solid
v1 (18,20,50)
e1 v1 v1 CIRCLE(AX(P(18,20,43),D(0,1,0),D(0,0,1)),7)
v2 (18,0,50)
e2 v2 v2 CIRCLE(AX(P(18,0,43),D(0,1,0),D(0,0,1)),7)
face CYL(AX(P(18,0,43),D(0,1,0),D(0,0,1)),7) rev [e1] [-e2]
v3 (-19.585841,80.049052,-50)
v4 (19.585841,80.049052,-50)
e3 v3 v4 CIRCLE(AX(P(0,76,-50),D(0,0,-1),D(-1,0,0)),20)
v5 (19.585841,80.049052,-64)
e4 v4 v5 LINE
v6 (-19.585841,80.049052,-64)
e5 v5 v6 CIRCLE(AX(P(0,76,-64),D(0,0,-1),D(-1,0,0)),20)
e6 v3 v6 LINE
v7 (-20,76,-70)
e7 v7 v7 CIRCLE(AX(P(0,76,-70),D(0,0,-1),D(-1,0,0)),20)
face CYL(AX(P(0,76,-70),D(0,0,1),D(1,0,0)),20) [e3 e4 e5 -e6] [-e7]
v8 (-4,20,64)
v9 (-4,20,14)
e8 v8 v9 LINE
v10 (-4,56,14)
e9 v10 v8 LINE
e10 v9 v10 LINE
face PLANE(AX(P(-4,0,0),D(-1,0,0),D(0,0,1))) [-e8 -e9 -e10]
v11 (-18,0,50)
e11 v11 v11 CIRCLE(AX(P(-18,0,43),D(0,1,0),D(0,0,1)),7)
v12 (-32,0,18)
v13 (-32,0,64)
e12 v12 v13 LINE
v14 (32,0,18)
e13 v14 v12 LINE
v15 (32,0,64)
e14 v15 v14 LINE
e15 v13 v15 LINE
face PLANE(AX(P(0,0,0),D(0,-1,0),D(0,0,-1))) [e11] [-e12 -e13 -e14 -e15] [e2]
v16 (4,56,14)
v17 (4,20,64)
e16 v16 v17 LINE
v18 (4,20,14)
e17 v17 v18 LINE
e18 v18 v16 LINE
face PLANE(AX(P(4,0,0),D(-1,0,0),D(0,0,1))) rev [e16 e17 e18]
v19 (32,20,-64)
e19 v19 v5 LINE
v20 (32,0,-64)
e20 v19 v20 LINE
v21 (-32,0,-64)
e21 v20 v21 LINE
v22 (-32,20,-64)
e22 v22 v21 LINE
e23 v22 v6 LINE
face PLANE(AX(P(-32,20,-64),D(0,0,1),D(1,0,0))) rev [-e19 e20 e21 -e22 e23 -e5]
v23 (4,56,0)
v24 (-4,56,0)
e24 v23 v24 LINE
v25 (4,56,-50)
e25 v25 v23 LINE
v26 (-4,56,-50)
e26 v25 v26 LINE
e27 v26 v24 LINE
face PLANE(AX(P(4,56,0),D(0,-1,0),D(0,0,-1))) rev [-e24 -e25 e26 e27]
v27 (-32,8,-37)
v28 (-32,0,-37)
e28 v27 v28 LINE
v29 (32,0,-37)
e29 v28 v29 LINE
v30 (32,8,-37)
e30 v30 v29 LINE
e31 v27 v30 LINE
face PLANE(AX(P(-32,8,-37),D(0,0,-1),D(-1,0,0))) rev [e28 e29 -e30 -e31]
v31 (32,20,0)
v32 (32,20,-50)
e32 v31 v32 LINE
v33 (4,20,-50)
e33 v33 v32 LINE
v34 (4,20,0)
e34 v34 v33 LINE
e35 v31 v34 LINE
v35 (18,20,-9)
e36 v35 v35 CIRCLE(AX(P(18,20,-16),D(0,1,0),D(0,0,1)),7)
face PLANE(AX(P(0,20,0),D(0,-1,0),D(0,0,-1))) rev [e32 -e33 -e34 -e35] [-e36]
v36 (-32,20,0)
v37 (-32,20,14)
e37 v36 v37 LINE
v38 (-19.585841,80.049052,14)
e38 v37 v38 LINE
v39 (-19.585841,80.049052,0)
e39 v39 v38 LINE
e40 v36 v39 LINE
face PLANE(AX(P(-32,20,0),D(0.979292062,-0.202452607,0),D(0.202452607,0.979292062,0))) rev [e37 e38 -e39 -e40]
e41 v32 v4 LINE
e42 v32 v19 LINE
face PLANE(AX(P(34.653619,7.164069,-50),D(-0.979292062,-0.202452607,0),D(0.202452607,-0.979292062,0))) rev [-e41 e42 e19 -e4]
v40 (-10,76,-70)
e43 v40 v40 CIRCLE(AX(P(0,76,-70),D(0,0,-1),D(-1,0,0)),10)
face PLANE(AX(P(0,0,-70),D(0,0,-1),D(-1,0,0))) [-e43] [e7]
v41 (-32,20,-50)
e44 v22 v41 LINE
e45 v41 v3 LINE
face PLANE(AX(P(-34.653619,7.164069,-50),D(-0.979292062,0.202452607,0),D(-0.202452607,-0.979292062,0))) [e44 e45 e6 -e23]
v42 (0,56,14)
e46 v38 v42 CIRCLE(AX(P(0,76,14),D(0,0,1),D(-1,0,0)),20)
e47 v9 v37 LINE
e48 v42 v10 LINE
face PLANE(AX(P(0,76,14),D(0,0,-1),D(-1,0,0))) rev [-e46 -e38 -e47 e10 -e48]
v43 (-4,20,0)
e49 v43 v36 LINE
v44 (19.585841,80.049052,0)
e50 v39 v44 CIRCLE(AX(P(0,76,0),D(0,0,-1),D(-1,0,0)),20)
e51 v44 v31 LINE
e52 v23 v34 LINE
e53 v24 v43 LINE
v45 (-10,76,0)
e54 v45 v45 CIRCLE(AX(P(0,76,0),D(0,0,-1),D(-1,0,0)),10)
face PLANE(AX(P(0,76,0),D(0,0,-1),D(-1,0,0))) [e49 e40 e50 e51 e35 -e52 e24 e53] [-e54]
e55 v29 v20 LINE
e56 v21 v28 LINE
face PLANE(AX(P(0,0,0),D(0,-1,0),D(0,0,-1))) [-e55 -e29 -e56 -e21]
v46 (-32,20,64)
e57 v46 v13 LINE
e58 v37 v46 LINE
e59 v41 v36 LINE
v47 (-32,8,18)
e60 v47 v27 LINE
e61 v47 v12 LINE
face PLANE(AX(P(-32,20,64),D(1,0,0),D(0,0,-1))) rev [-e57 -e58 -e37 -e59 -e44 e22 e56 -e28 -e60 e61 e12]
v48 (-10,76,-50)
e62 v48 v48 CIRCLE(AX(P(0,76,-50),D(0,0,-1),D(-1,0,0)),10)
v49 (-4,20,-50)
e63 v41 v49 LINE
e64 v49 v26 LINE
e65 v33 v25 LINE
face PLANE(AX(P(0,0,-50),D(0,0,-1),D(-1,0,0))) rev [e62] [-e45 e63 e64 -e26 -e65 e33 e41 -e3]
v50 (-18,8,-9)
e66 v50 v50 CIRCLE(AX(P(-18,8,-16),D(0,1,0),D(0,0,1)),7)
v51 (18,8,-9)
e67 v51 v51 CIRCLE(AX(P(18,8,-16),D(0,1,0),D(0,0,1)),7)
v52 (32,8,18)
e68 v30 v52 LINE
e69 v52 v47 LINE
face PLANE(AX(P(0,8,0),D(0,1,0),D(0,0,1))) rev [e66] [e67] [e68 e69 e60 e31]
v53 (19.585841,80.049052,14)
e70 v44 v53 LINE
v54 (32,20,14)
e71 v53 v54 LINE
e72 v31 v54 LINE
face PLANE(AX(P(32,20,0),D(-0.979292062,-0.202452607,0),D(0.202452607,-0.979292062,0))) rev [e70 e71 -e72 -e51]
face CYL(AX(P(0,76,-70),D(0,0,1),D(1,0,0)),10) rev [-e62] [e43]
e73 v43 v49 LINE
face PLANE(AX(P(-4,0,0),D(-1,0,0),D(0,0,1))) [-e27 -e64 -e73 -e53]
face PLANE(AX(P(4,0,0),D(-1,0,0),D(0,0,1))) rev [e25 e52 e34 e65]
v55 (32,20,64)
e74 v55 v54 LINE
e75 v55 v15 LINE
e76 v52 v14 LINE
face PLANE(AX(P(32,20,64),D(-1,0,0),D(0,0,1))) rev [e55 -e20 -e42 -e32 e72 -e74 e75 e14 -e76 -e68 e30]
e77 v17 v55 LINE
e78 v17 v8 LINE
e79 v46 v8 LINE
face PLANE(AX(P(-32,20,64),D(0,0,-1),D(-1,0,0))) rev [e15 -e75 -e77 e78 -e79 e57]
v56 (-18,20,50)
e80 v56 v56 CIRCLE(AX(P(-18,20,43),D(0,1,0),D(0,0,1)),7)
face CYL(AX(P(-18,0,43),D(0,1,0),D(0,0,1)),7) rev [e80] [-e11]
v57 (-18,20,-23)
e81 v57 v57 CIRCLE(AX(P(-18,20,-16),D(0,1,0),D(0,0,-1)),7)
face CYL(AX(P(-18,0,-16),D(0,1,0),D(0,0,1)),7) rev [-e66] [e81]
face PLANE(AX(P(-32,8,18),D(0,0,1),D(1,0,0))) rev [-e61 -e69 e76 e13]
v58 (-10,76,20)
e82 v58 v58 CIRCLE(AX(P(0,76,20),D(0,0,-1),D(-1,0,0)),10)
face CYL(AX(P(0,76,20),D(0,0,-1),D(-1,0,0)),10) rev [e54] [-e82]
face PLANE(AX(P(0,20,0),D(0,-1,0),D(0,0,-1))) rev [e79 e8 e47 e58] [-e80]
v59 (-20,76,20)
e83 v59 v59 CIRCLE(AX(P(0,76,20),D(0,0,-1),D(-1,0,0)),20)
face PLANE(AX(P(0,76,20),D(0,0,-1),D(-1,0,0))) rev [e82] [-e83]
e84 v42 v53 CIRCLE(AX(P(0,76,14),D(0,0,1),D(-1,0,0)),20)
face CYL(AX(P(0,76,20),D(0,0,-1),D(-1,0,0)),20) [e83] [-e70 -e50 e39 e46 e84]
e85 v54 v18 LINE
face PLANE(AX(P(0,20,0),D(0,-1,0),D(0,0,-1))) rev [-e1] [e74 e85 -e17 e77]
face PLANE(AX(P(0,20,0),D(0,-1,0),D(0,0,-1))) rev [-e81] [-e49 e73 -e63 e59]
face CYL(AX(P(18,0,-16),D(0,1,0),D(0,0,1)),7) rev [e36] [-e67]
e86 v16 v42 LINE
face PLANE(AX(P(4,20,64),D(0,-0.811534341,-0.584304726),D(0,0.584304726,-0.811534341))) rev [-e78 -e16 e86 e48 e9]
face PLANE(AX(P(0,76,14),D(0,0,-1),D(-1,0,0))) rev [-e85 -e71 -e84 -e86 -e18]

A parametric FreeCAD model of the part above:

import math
import FreeCAD as App
import Part
import Sketcher

doc = App.newDocument("Part")
body = doc.addObject("PartDesign::Body", "Body")

# Sketch on XZ plane
sketch1 = doc.addObject("Sketcher::SketchObject", "Sketch")
body.addObject(sketch1)
sketch1.AttachmentSupport = (doc.XZ_Plane, [""])
sketch1.MapMode = "FlatFace"
sketch1.addGeometry([
    Part.LineSegment(App.Vector(-32, -64, 0), App.Vector(-32, 64, 0)),
    Part.LineSegment(App.Vector(-32, 64, 0), App.Vector(32, 64, 0)),
    Part.LineSegment(App.Vector(32, 64, 0), App.Vector(32, -64, 0)),
    Part.LineSegment(App.Vector(32, -64, 0), App.Vector(-32, -64, 0)),
], False)
sketch1.addConstraint([
    Sketcher.Constraint("Coincident", 0, 2, 1, 1),
    Sketcher.Constraint("Coincident", 1, 2, 2, 1),
    Sketcher.Constraint("Coincident", 2, 2, 3, 1),
    Sketcher.Constraint("Coincident", 3, 2, 0, 1),
    Sketcher.Constraint("Vertical", 0),
    Sketcher.Constraint("Horizontal", 1),
    Sketcher.Constraint("Vertical", 2),
    Sketcher.Constraint("Horizontal", 3),
    Sketcher.Constraint("Symmetric", 0, 2, 2, 2, -1, 1),
    Sketcher.Constraint("DistanceX", 1, 1, 1, 2, 64.0),
    Sketcher.Constraint("DistanceY", 0, 1, 0, 2, 128.0),
])
pad1 = doc.addObject("PartDesign::Pad", "Pad")
body.addObject(pad1)
pad1.Profile = sketch1
pad1.Length = 20
pad1.Reversed = True

# Sketch on XY plane
sketch2 = doc.addObject("Sketcher::SketchObject", "Sketch001")
body.addObject(sketch2)
sketch2.AttachmentSupport = (doc.XY_Plane, [""])
sketch2.MapMode = "FlatFace"
sketch2.AttachmentOffset = App.Placement(App.Vector(0, 0, -64), App.Rotation())
sketch2.addGeometry([
    Part.LineSegment(App.Vector(19.585841, 80.049052, 0), App.Vector(32, 20, 0)),  # 0
    Part.LineSegment(App.Vector(32, 20, 0), App.Vector(-32, 20, 0)),  # 1
    Part.LineSegment(App.Vector(-32, 20, 0), App.Vector(-19.585841, 80.049052, 0)),  # 2
    Part.ArcOfCircle(Part.Circle(App.Vector(0, 76, 0), App.Vector(0, 0, 1), 20), math.radians(168.319582), math.radians(180)),  # 3
    Part.ArcOfCircle(Part.Circle(App.Vector(0, 76, 0), App.Vector(0, 0, 1), 20), math.radians(180), math.radians(371.680418)),  # 4
], False)
sketch2.addConstraint([
    Sketcher.Constraint("Coincident", 0, 2, 1, 1),
    Sketcher.Constraint("Coincident", 1, 2, 2, 1),
    Sketcher.Constraint("Tangent", 2, 2, 3, 1),
    Sketcher.Constraint("Tangent", 3, 2, 4, 1),
    Sketcher.Constraint("Tangent", 4, 2, 0, 1),
    Sketcher.Constraint("Horizontal", 1),
    Sketcher.Constraint("Equal", 3, 4),
    Sketcher.Constraint("Symmetric", 2, 2, 4, 2, -2),
    Sketcher.Constraint("Horizontal", 4, 3, 3, 2),
    Sketcher.Constraint("Radius", 3, 20.0),
    Sketcher.Constraint("DistanceX", 1, 2, 1, 1, 64.0),
    Sketcher.Constraint("DistanceY", -1, 1, 3, 3, 76.0),
    Sketcher.Constraint("DistanceY", -1, 1, 0, 2, 20.0),
])
pad2 = doc.addObject("PartDesign::Pad", "Pad001")
body.addObject(pad2)
pad2.Profile = sketch2
pad2.Length = 14

# Sketch on XY plane
sketch3 = doc.addObject("Sketcher::SketchObject", "Sketch002")
body.addObject(sketch3)
sketch3.AttachmentSupport = (doc.XY_Plane, [""])
sketch3.MapMode = "FlatFace"
sketch3.AttachmentOffset = App.Placement(App.Vector(0, 0, -64), App.Rotation())
sketch3.addGeometry([
    Part.Circle(App.Vector(0, 76, 0), App.Vector(0, 0, 1), 20),
    Part.Circle(App.Vector(0, 76, 0), App.Vector(0, 0, 1), 10),
], False)
sketch3.addConstraint([
    Sketcher.Constraint("Coincident", 1, 3, 0, 3),
    Sketcher.Constraint("PointOnObject", 0, 3, -2),
    Sketcher.Constraint("Diameter", 0, 40.0),
    Sketcher.Constraint("Diameter", 1, 20.0),
    Sketcher.Constraint("DistanceY", -1, 1, 0, 3, 76.0),
])
pad3 = doc.addObject("PartDesign::Pad", "Pad002")
body.addObject(pad3)
pad3.Profile = sketch3
pad3.Type = "TwoLengths"
pad3.Length = 6
pad3.Length2 = 14
pad3.Reversed = True
body2 = doc.addObject("PartDesign::Body", "Body001")

# Sketch on XY plane
sketch4 = doc.addObject("Sketcher::SketchObject", "Sketch003")
body2.addObject(sketch4)
sketch4.AttachmentSupport = (doc.getObject("XY_Plane001"), [""])
sketch4.MapMode = "FlatFace"
sketch4.addGeometry([
    Part.Circle(App.Vector(0, 76, 0), App.Vector(0, 0, 1), 20),
    Part.Circle(App.Vector(0, 76, 0), App.Vector(0, 0, 1), 10),
], False)
sketch4.addConstraint([
    Sketcher.Constraint("Coincident", 1, 3, 0, 3),
    Sketcher.Constraint("PointOnObject", 0, 3, -2),
    Sketcher.Constraint("Diameter", 0, 40.0),
    Sketcher.Constraint("Diameter", 1, 20.0),
    Sketcher.Constraint("DistanceY", -1, 1, 0, 3, 76.0),
])
pad4 = doc.addObject("PartDesign::Pad", "Pad003")
body2.addObject(pad4)
pad4.Profile = sketch4
pad4.Length = 20
body.AllowCompound = True
doc.recompute()

boolean = doc.addObject("PartDesign::Boolean", "Boolean")
body.addObject(boolean)
boolean.Type = "Fuse"
boolean.addObjects([body2])

# Sketch on XY plane
sketch5 = doc.addObject("Sketcher::SketchObject", "Sketch004")
body.addObject(sketch5)
sketch5.AttachmentSupport = (doc.XY_Plane, [""])
sketch5.MapMode = "FlatFace"
sketch5.AttachmentOffset = App.Placement(App.Vector(0, 0, 14), App.Rotation())
sketch5.addGeometry([
    Part.LineSegment(App.Vector(-32, 20, 0), App.Vector(-19.585841, 80.049052, 0)),
    Part.ArcOfCircle(Part.Circle(App.Vector(0, 76, 0), App.Vector(0, 0, 1), 20), math.radians(168.319582), math.radians(371.680418)),
    Part.LineSegment(App.Vector(19.585841, 80.049052, 0), App.Vector(32, 20, 0)),
    Part.LineSegment(App.Vector(32, 20, 0), App.Vector(-32, 20, 0)),
], False)
sketch5.addConstraint([
    Sketcher.Constraint("Tangent", 0, 2, 1, 1),
    Sketcher.Constraint("Tangent", 1, 2, 2, 1),
    Sketcher.Constraint("Coincident", 2, 2, 3, 1),
    Sketcher.Constraint("Coincident", 3, 2, 0, 1),
    Sketcher.Constraint("Horizontal", 3),
    Sketcher.Constraint("Symmetric", 0, 2, 1, 2, -2),
    Sketcher.Constraint("Radius", 1, 20.0),
    Sketcher.Constraint("DistanceX", 3, 2, 3, 1, 64.0),
    Sketcher.Constraint("DistanceY", -1, 1, 1, 3, 76.0),
    Sketcher.Constraint("DistanceY", -1, 1, 2, 2, 20.0),
])
pad5 = doc.addObject("PartDesign::Pad", "Pad004")
body.addObject(pad5)
pad5.Profile = sketch5
pad5.Length = 14
pad5.Reversed = True

# Sketch on XZ plane
sketch6 = doc.addObject("Sketcher::SketchObject", "Sketch005")
body.addObject(sketch6)
sketch6.AttachmentSupport = (doc.XZ_Plane, [""])
sketch6.MapMode = "FlatFace"
sketch6.addGeometry([
    Part.LineSegment(App.Vector(-32, 18, 0), App.Vector(-32, -37, 0)),
    Part.LineSegment(App.Vector(-32, -37, 0), App.Vector(32, -37, 0)),
    Part.LineSegment(App.Vector(32, -37, 0), App.Vector(32, 18, 0)),
    Part.LineSegment(App.Vector(32, 18, 0), App.Vector(-32, 18, 0)),
], False)
sketch6.addConstraint([
    Sketcher.Constraint("Coincident", 0, 2, 1, 1),
    Sketcher.Constraint("Coincident", 1, 2, 2, 1),
    Sketcher.Constraint("Coincident", 2, 2, 3, 1),
    Sketcher.Constraint("Coincident", 3, 2, 0, 1),
    Sketcher.Constraint("Vertical", 0),
    Sketcher.Constraint("Horizontal", 1),
    Sketcher.Constraint("Vertical", 2),
    Sketcher.Constraint("Horizontal", 3),
    Sketcher.Constraint("DistanceX", 1, 1, 1, 2, 64.0),
    Sketcher.Constraint("DistanceY", 0, 2, 0, 1, 55.0),
    Sketcher.Constraint("DistanceX", 0, 2, -1, 1, 32.0),
    Sketcher.Constraint("DistanceY", 0, 2, -1, 1, 37.0),
])
pocket1 = doc.addObject("PartDesign::Pocket", "Pocket")
body.addObject(pocket1)
pocket1.Profile = sketch6
pocket1.Length = 8

# Sketch on YZ plane
sketch7 = doc.addObject("Sketcher::SketchObject", "Sketch006")
body.addObject(sketch7)
sketch7.AttachmentSupport = (doc.YZ_Plane, [""])
sketch7.MapMode = "FlatFace"
sketch7.addGeometry([
    Part.LineSegment(App.Vector(20, 64, 0), App.Vector(20, 14, 0)),  # 0
    Part.LineSegment(App.Vector(20, 14, 0), App.Vector(56, 14, 0)),  # 1
    Part.LineSegment(App.Vector(56, 14, 0), App.Vector(20, 64, 0)),  # 2
    Part.LineSegment(App.Vector(56, 0, 0), App.Vector(20, 0, 0)),  # 3
    Part.LineSegment(App.Vector(20, 0, 0), App.Vector(20, -50, 0)),  # 4
    Part.LineSegment(App.Vector(20, -50, 0), App.Vector(56, -50, 0)),  # 5
    Part.LineSegment(App.Vector(56, -50, 0), App.Vector(56, 0, 0)),  # 6
], False)
sketch7.addConstraint([
    Sketcher.Constraint("Coincident", 0, 2, 1, 1),
    Sketcher.Constraint("Coincident", 1, 2, 2, 1),
    Sketcher.Constraint("Coincident", 2, 2, 0, 1),
    Sketcher.Constraint("Coincident", 3, 2, 4, 1),
    Sketcher.Constraint("Coincident", 4, 2, 5, 1),
    Sketcher.Constraint("Coincident", 5, 2, 6, 1),
    Sketcher.Constraint("Coincident", 6, 2, 3, 1),
    Sketcher.Constraint("Vertical", 0),
    Sketcher.Constraint("Horizontal", 1),
    Sketcher.Constraint("Horizontal", 3),
    Sketcher.Constraint("Vertical", 4),
    Sketcher.Constraint("Horizontal", 5),
    Sketcher.Constraint("Vertical", 6),
    Sketcher.Constraint("PointOnObject", 3, 2, -1),
    Sketcher.Constraint("Vertical", 2, 2, 3, 2),
    Sketcher.Constraint("Vertical", 1, 2, 5, 2),
    Sketcher.Constraint("Equal", 0, 4),
    Sketcher.Constraint("DistanceX", 1, 1, 1, 2, 36.0),
    Sketcher.Constraint("DistanceY", 0, 2, 0, 1, 50.0),
    Sketcher.Constraint("DistanceX", -1, 1, 0, 2, 20.0),
    Sketcher.Constraint("DistanceY", -1, 1, 0, 2, 14.0),
])
pad6 = doc.addObject("PartDesign::Pad", "Pad005")
body.addObject(pad6)
pad6.Profile = sketch7
pad6.Length = 8
pad6.Midplane = True

# Sketch on XZ plane
sketch8 = doc.addObject("Sketcher::SketchObject", "Sketch007")
body.addObject(sketch8)
sketch8.AttachmentSupport = (doc.XZ_Plane, [""])
sketch8.MapMode = "FlatFace"
sketch8.AttachmentOffset = App.Placement(App.Vector(0, 0, -20), App.Rotation())
sketch8.addGeometry([
    Part.Circle(App.Vector(18, -16, 0), App.Vector(0, 0, 1), 7),
    Part.Circle(App.Vector(-18, -16, 0), App.Vector(0, 0, 1), 7),
    Part.Circle(App.Vector(18, 43, 0), App.Vector(0, 0, 1), 7),
    Part.Circle(App.Vector(-18, 43, 0), App.Vector(0, 0, 1), 7),
], False)
sketch8.addConstraint([
    Sketcher.Constraint("Equal", 0, 1),
    Sketcher.Constraint("Equal", 1, 2),
    Sketcher.Constraint("Equal", 2, 3),
    Sketcher.Constraint("Symmetric", 0, 3, 1, 3, -2),
    Sketcher.Constraint("Symmetric", 2, 3, 3, 3, -2),
    Sketcher.Constraint("Vertical", 0, 3, 2, 3),
    Sketcher.Constraint("Diameter", 0, 14.0),
    Sketcher.Constraint("DistanceX", -1, 1, 0, 3, 18.0),
    Sketcher.Constraint("DistanceY", 0, 3, -1, 1, 16.0),
    Sketcher.Constraint("DistanceY", -1, 1, 2, 3, 43.0),
])
pocket2 = doc.addObject("PartDesign::Pocket", "Pocket001")
body.addObject(pocket2)
pocket2.Profile = sketch8
pocket2.Type = "ThroughAll"
pocket2.Reversed = True

doc.recompute()
